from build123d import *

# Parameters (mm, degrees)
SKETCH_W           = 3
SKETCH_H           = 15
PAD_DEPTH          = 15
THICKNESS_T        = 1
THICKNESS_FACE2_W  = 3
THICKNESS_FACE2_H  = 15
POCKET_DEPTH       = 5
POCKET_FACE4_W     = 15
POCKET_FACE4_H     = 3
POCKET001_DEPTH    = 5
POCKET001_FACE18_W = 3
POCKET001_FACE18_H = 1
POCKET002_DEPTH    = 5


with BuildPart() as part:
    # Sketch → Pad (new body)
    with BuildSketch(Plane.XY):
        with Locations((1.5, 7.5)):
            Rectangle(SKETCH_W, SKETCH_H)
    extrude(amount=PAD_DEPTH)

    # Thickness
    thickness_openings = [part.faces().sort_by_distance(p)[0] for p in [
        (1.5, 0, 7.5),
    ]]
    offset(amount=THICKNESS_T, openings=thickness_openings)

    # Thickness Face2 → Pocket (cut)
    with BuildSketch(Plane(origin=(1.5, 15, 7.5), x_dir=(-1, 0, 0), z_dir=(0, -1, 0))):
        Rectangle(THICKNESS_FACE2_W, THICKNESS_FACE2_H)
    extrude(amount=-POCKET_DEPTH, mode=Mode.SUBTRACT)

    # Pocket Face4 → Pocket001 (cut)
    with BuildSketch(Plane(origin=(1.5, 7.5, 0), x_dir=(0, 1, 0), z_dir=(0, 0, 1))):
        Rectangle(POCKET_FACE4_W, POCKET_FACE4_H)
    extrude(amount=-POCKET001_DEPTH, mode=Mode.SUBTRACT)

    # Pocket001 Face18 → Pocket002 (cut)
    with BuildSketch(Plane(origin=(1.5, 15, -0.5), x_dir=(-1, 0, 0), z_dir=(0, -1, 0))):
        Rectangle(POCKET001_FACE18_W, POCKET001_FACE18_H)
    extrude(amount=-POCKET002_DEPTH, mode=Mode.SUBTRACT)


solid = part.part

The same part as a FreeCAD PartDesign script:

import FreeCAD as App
import Part
import Sketcher
from FreeCAD import Vector


def faces_at(feature, points):
    """Names of the faces that lie closest to the given points."""
    faces = feature.Shape.Faces
    near = lambda p: min(range(len(faces)), key=lambda i: faces[i].distToShape(Part.Vertex(*p))[0])
    return sorted({f"Face{near(p) + 1}" for p in points})


def add_polygon(sketch, points):
    """Adds a closed chain of lines whose ends are joined by coincident constraints."""
    first, n = sketch.GeometryCount, len(points)
    for a, b in zip(points, points[1:] + points[:1]):
        sketch.addGeometry(Part.LineSegment(App.Vector(*a, 0), App.Vector(*b, 0)), False)
    for i in range(n):
        sketch.addConstraint(Sketcher.Constraint("Coincident", first + i, 2, first + (i + 1) % n, 1))

doc = App.newDocument("Part")
body = doc.addObject("PartDesign::Body", "Body")

# Sketch on XY plane
sketch1 = doc.addObject("Sketcher::SketchObject", "Sketch")
body.addObject(sketch1)
sketch1.AttachmentSupport = (doc.XY_Plane, [""])
sketch1.MapMode = "FlatFace"
add_polygon(sketch1, [(0, 15), (0, 0), (3, 0), (3, 15)])  # lines 0-3
sketch1.addConstraint([
    Sketcher.Constraint("Vertical", 0),
    Sketcher.Constraint("Horizontal", 1),
    Sketcher.Constraint("Vertical", 2),
    Sketcher.Constraint("Horizontal", 3),
    Sketcher.Constraint("Coincident", 0, 2, -1, 1),
    Sketcher.Constraint("DistanceX", 1, 1, 1, 2, 3.0),
    Sketcher.Constraint("DistanceY", 0, 2, 0, 1, 15.0),
])
pad1 = doc.addObject("PartDesign::Pad", "Pad")
body.addObject(pad1)
pad1.Profile = sketch1
pad1.Length = 15
doc.recompute()

thickness = doc.addObject("PartDesign::Thickness", "Thickness")
body.addObject(thickness)
thickness.Base = (pad1, faces_at(pad1, [(1.5, 0, 7.5)]))
thickness.Value = 1
thickness.Reversed = False
thickness.Join = "Arc"

# Sketch on XZ plane
sketch2 = doc.addObject("Sketcher::SketchObject", "Sketch001")
body.addObject(sketch2)
sketch2.AttachmentSupport = (doc.XZ_Plane, [""])
sketch2.MapMode = "FlatFace"
sketch2.AttachmentOffset = App.Placement(Vector(0, 0, -15), App.Rotation())
add_polygon(sketch2, [(3, 0), (3, 15), (0, 15), (0, 0)])  # lines 0-3
sketch2.addConstraint([
    Sketcher.Constraint("Vertical", 0),
    Sketcher.Constraint("Horizontal", 1),
    Sketcher.Constraint("Vertical", 2),
    Sketcher.Constraint("Horizontal", 3),
    Sketcher.Constraint("Coincident", 2, 2, -1, 1),
    Sketcher.Constraint("DistanceX", 1, 2, 1, 1, 3.0),
    Sketcher.Constraint("DistanceY", 0, 1, 0, 2, 15.0),
])
pocket1 = doc.addObject("PartDesign::Pocket", "Pocket")
body.addObject(pocket1)
pocket1.Profile = sketch2
pocket1.Length = 5

# Sketch on XY plane
sketch3 = doc.addObject("Sketcher::SketchObject", "Sketch002")
body.addObject(sketch3)
sketch3.AttachmentSupport = (doc.XY_Plane, [""])
sketch3.MapMode = "FlatFace"
add_polygon(sketch3, [(0, 0), (3, 0), (3, 15), (0, 15)])  # lines 0-3
sketch3.addConstraint([
    Sketcher.Constraint("Horizontal", 0),
    Sketcher.Constraint("Vertical", 1),
    Sketcher.Constraint("Horizontal", 2),
    Sketcher.Constraint("Vertical", 3),
    Sketcher.Constraint("Coincident", 3, 2, -1, 1),
    Sketcher.Constraint("DistanceX", 0, 1, 0, 2, 3.0),
    Sketcher.Constraint("DistanceY", 1, 1, 1, 2, 15.0),
])
pocket2 = doc.addObject("PartDesign::Pocket", "Pocket001")
body.addObject(pocket2)
pocket2.Profile = sketch3
pocket2.Length = 5

# Sketch on XZ plane
sketch4 = doc.addObject("Sketcher::SketchObject", "Sketch003")
body.addObject(sketch4)
sketch4.AttachmentSupport = (doc.XZ_Plane, [""])
sketch4.MapMode = "FlatFace"
sketch4.AttachmentOffset = App.Placement(Vector(0, 0, -15), App.Rotation())
add_polygon(sketch4, [(3, -1), (3, 0), (0, 0), (0, -1)])  # lines 0-3
sketch4.addConstraint([
    Sketcher.Constraint("Vertical", 0),
    Sketcher.Constraint("Horizontal", 1),
    Sketcher.Constraint("Vertical", 2),
    Sketcher.Constraint("Horizontal", 3),
    Sketcher.Constraint("Coincident", 1, 2, -1, 1),
    Sketcher.Constraint("DistanceX", 1, 2, 1, 1, 3.0),
    Sketcher.Constraint("DistanceY", 0, 1, 0, 2, 1.0),
])
pocket3 = doc.addObject("PartDesign::Pocket", "Pocket002")
body.addObject(pocket3)
pocket3.Profile = sketch4
pocket3.Length = 5

doc.recompute()
